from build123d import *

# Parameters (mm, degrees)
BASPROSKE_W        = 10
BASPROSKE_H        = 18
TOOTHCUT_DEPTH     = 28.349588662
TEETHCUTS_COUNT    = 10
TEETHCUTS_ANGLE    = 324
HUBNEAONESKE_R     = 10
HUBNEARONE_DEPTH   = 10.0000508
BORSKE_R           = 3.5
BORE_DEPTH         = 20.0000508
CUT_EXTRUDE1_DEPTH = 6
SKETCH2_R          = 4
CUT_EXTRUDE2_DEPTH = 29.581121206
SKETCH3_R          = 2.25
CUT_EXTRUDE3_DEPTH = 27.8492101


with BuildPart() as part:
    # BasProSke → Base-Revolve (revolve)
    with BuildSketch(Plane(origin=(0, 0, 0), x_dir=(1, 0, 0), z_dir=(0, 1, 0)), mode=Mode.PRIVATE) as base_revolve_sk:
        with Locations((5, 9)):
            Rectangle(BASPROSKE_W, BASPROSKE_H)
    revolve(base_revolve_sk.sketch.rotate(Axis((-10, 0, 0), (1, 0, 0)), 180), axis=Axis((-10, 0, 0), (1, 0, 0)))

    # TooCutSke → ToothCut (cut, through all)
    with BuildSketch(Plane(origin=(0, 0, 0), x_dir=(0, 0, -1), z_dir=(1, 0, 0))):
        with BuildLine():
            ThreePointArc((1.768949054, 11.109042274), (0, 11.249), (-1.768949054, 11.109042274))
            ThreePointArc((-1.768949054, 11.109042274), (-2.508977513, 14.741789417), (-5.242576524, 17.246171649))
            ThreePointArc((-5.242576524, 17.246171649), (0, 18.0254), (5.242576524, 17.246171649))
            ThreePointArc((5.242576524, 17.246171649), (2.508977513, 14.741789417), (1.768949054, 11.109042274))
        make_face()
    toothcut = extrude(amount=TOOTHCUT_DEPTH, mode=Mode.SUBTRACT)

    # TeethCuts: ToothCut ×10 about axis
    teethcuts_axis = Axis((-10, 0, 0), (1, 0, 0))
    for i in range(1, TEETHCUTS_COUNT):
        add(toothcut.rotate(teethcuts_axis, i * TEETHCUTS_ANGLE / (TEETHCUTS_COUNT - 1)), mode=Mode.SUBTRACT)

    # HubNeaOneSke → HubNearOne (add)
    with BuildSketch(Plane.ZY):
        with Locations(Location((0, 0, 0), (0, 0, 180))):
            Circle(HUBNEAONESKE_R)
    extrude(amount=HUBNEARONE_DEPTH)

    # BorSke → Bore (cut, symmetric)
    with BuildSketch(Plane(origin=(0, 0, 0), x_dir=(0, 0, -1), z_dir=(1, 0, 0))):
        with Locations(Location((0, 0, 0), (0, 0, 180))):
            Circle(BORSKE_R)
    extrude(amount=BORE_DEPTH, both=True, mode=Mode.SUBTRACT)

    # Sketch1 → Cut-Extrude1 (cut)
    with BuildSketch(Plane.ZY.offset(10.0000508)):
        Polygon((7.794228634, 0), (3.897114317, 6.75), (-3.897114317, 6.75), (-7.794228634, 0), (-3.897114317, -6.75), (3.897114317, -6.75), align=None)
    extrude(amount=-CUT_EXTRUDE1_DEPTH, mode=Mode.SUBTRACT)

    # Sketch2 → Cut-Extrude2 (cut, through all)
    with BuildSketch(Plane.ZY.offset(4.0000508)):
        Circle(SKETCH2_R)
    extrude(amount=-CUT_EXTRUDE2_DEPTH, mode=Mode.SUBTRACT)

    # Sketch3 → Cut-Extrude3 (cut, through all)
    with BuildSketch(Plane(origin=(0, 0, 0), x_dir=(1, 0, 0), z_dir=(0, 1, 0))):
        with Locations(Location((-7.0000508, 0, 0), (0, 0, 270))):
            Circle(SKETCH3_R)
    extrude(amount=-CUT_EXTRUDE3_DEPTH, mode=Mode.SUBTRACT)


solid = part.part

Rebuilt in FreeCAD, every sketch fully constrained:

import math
import FreeCAD as App
import Part
import Sketcher
from FreeCAD import Vector
Q = App.Units.Quantity

doc = App.newDocument("Part")
body = doc.addObject("PartDesign::Body", "Body")

# Sketch on XZ plane
sketch1 = body.newObject("Sketcher::SketchObject", "Sketch")
sketch1.AttachmentSupport = (doc.getObject("XZ_Plane"), [""])
sketch1.MapMode = "FlatFace"
sketch1.addGeometry(Part.LineSegment(Vector(0, -18, 0), Vector(0, 0, 0)), False)
sketch1.addGeometry(Part.LineSegment(Vector(0, 0, 0), Vector(10, 0, 0)), False)
sketch1.addGeometry(Part.LineSegment(Vector(10, 0, 0), Vector(10, -18, 0)), False)
sketch1.addGeometry(Part.LineSegment(Vector(10, -18, 0), Vector(0, -18, 0)), False)
sketch1.addConstraint(Sketcher.Constraint("Coincident", 0, 2, 1, 1))
sketch1.addConstraint(Sketcher.Constraint("Coincident", 1, 2, 2, 1))
sketch1.addConstraint(Sketcher.Constraint("Coincident", 2, 2, 3, 1))
sketch1.addConstraint(Sketcher.Constraint("Coincident", 3, 2, 0, 1))
sketch1.addConstraint(Sketcher.Constraint("Vertical", 0))
sketch1.addConstraint(Sketcher.Constraint("Horizontal", 1))
sketch1.addConstraint(Sketcher.Constraint("Vertical", 2))
sketch1.addConstraint(Sketcher.Constraint("Horizontal", 3))
sketch1.addConstraint(Sketcher.Constraint("Coincident", 0, 2, -1, 1))
sketch1.addConstraint(Sketcher.Constraint("DistanceX", 1, 1, 1, 2, 10.0))
sketch1.addConstraint(Sketcher.Constraint("DistanceY", 0, 1, 0, 2, 18.0))
revolution = body.newObject("PartDesign::Revolution", "Revolution")
revolution.Profile = sketch1
revolution.ReferenceAxis = (sketch1, ["H_Axis"])
revolution.Angle = 360

# Sketch on YZ plane
sketch2 = body.newObject("Sketcher::SketchObject", "Sketch001")
sketch2.AttachmentSupport = (doc.getObject("YZ_Plane"), [""])
sketch2.MapMode = "FlatFace"
sketch2.addGeometry(Part.ArcOfCircle(Part.Circle(Vector(0, 0, 0), Vector(0, 0, 1), 11.2), math.radians(-9.05), math.radians(9.05)), False)
sketch2.addGeometry(Part.ArcOfCircle(Part.Circle(Vector(11.8, -7.7, 0), Vector(0, 0, 1), 6), math.radians(24), math.radians(96)), False)
sketch2.addGeometry(Part.ArcOfCircle(Part.Circle(Vector(0, 0, 0), Vector(0, 0, 1), 18), math.radians(-17), math.radians(17)), False)
sketch2.addGeometry(Part.ArcOfCircle(Part.Circle(Vector(11.8, 7.7, 0), Vector(0, 0, 1), 6), math.radians(-96), math.radians(-24)), False)
sketch2.addConstraint(Sketcher.Constraint("Coincident", 0, 1, 1, 2))
sketch2.addConstraint(Sketcher.Constraint("Coincident", 1, 1, 2, 1))
sketch2.addConstraint(Sketcher.Constraint("Coincident", 2, 2, 3, 2))
sketch2.addConstraint(Sketcher.Constraint("Coincident", 3, 1, 0, 2))
sketch2.addConstraint(Sketcher.Constraint("Coincident", 0, 3, -1, 1))
sketch2.addConstraint(Sketcher.Constraint("Coincident", 2, 3, -1, 1))
sketch2.addConstraint(Sketcher.Constraint("Equal", 1, 3))
sketch2.addConstraint(Sketcher.Constraint("Symmetric", 1, 3, 3, 3, -1))
sketch2.addConstraint(Sketcher.Constraint("Radius", 1, 6.0))
sketch2.addConstraint(Sketcher.Constraint("Radius", 0, 11.249))
sketch2.addConstraint(Sketcher.Constraint("Radius", 2, 18.0254))
sketch2.addConstraint(Sketcher.Constraint("DistanceY", 1, 3, -1, 1, 7.730599))
sketch2.addConstraint(Sketcher.Constraint("DistanceX", 0, 1, 1, 3, 0.677299))
pocket1 = body.newObject("PartDesign::Pocket", "Pocket")
pocket1.Profile = sketch2
pocket1.Type = "ThroughAll"
pocket1.Reversed = True
doc.recompute()

polarpattern = body.newObject("PartDesign::PolarPattern", "PolarPattern")
polarpattern.Originals = [pocket1]
polarpattern.Axis = (doc.getObject("X_Axis"), [""])
polarpattern.Angle = 360
polarpattern.Occurrences = 10
body.Tip = polarpattern

# Sketch on YZ plane
sketch3 = body.newObject("Sketcher::SketchObject", "Sketch002")
sketch3.AttachmentSupport = (doc.getObject("YZ_Plane"), [""])
sketch3.MapMode = "FlatFace"
sketch3.addGeometry(Part.Circle(Vector(0, 0, 0), Vector(0, 0, 1), 10), False)
sketch3.addConstraint(Sketcher.Constraint("Coincident", 0, 3, -1, 1))
sketch3.addConstraint(Sketcher.Constraint("Diameter", 0, 20.0))
pad1 = body.newObject("PartDesign::Pad", "Pad")
pad1.Profile = sketch3
pad1.Length = 10.000051
pad1.Reversed = True

# Sketch on YZ plane
sketch4 = body.newObject("Sketcher::SketchObject", "Sketch003")
sketch4.AttachmentSupport = (doc.getObject("YZ_Plane"), [""])
sketch4.MapMode = "FlatFace"
sketch4.addGeometry(Part.Circle(Vector(0, 0, 0), Vector(0, 0, 1), 3.5), False)
sketch4.addConstraint(Sketcher.Constraint("Coincident", 0, 3, -1, 1))
sketch4.addConstraint(Sketcher.Constraint("Diameter", 0, 7.0))
pocket2 = body.newObject("PartDesign::Pocket", "Pocket001")
pocket2.Profile = sketch4
pocket2.Length = 40.000102
pocket2.Midplane = True

# Sketch on YZ plane
sketch5 = body.newObject("Sketcher::SketchObject", "Sketch004")
sketch5.AttachmentSupport = (doc.getObject("YZ_Plane"), [""])
sketch5.MapMode = "FlatFace"
sketch5.AttachmentOffset = App.Placement(Vector(0, 0, -10.000051), App.Rotation())
sketch5.addGeometry(Part.LineSegment(Vector(0, 8, 0), Vector(7, 4, 0)), False)
sketch5.addGeometry(Part.LineSegment(Vector(7, 4, 0), Vector(7, -4, 0)), False)
sketch5.addGeometry(Part.LineSegment(Vector(7, -4, 0), Vector(0, -8, 0)), False)
sketch5.addGeometry(Part.LineSegment(Vector(0, -8, 0), Vector(-7, -4, 0)), False)
sketch5.addGeometry(Part.LineSegment(Vector(-7, -4, 0), Vector(-7, 4, 0)), False)
sketch5.addGeometry(Part.LineSegment(Vector(-7, 4, 0), Vector(0, 8, 0)), False)
sketch5.addConstraint(Sketcher.Constraint("Coincident", 0, 2, 1, 1))
sketch5.addConstraint(Sketcher.Constraint("Coincident", 1, 2, 2, 1))
sketch5.addConstraint(Sketcher.Constraint("Coincident", 2, 2, 3, 1))
sketch5.addConstraint(Sketcher.Constraint("Coincident", 3, 2, 4, 1))
sketch5.addConstraint(Sketcher.Constraint("Coincident", 4, 2, 5, 1))
sketch5.addConstraint(Sketcher.Constraint("Coincident", 5, 2, 0, 1))
sketch5.addConstraint(Sketcher.Constraint("Vertical", 1))
sketch5.addConstraint(Sketcher.Constraint("Vertical", 4))
sketch5.addConstraint(Sketcher.Constraint("Symmetric", 0, 2, 3, 2, -1, 1))
sketch5.addConstraint(Sketcher.Constraint("Symmetric", 2, 2, 5, 2, -1, 1))
sketch5.addConstraint(Sketcher.Constraint("PointOnObject", 2, 2, -2))
sketch5.addConstraint(Sketcher.Constraint("Parallel", 2, 5))
sketch5.addConstraint(Sketcher.Constraint("Horizontal", 1, 2, 3, 2))
sketch5.addConstraint(Sketcher.Constraint("Angle", 0, Q("-30 deg")))
sketch5.addConstraint(Sketcher.Constraint("DistanceX", 3, 2, 1, 2, 13.5))
sketch5.addConstraint(Sketcher.Constraint("DistanceY", 1, 2, 1, 1, 7.794229))
pocket3 = body.newObject("PartDesign::Pocket", "Pocket002")
pocket3.Profile = sketch5
pocket3.Length = 6
pocket3.Reversed = True

# Sketch on YZ plane
sketch6 = body.newObject("Sketcher::SketchObject", "Sketch005")
sketch6.AttachmentSupport = (doc.getObject("YZ_Plane"), [""])
sketch6.MapMode = "FlatFace"
sketch6.AttachmentOffset = App.Placement(Vector(0, 0, -4.000051), App.Rotation())
sketch6.addGeometry(Part.Circle(Vector(0, 0, 0), Vector(0, 0, 1), 4), False)
sketch6.addConstraint(Sketcher.Constraint("Coincident", 0, 3, -1, 1))
sketch6.addConstraint(Sketcher.Constraint("Diameter", 0, 8.0))
pocket4 = body.newObject("PartDesign::Pocket", "Pocket003")
pocket4.Profile = sketch6
pocket4.Type = "ThroughAll"
pocket4.Reversed = True

# Sketch on XZ plane
sketch7 = body.newObject("Sketcher::SketchObject", "Sketch006")
sketch7.AttachmentSupport = (doc.getObject("XZ_Plane"), [""])
sketch7.MapMode = "FlatFace"
sketch7.addGeometry(Part.Circle(Vector(-7, 0, 0), Vector(0, 0, 1), 2.2), False)
sketch7.addConstraint(Sketcher.Constraint("PointOnObject", 0, 3, -1))
sketch7.addConstraint(Sketcher.Constraint("Diameter", 0, 4.5))
sketch7.addConstraint(Sketcher.Constraint("DistanceX", 0, 3, -1, 1, 7.000051))
pocket5 = body.newObject("PartDesign::Pocket", "Pocket004")
pocket5.Profile = sketch7
pocket5.Type = "ThroughAll"
pocket5.Reversed = True

doc.recompute()
